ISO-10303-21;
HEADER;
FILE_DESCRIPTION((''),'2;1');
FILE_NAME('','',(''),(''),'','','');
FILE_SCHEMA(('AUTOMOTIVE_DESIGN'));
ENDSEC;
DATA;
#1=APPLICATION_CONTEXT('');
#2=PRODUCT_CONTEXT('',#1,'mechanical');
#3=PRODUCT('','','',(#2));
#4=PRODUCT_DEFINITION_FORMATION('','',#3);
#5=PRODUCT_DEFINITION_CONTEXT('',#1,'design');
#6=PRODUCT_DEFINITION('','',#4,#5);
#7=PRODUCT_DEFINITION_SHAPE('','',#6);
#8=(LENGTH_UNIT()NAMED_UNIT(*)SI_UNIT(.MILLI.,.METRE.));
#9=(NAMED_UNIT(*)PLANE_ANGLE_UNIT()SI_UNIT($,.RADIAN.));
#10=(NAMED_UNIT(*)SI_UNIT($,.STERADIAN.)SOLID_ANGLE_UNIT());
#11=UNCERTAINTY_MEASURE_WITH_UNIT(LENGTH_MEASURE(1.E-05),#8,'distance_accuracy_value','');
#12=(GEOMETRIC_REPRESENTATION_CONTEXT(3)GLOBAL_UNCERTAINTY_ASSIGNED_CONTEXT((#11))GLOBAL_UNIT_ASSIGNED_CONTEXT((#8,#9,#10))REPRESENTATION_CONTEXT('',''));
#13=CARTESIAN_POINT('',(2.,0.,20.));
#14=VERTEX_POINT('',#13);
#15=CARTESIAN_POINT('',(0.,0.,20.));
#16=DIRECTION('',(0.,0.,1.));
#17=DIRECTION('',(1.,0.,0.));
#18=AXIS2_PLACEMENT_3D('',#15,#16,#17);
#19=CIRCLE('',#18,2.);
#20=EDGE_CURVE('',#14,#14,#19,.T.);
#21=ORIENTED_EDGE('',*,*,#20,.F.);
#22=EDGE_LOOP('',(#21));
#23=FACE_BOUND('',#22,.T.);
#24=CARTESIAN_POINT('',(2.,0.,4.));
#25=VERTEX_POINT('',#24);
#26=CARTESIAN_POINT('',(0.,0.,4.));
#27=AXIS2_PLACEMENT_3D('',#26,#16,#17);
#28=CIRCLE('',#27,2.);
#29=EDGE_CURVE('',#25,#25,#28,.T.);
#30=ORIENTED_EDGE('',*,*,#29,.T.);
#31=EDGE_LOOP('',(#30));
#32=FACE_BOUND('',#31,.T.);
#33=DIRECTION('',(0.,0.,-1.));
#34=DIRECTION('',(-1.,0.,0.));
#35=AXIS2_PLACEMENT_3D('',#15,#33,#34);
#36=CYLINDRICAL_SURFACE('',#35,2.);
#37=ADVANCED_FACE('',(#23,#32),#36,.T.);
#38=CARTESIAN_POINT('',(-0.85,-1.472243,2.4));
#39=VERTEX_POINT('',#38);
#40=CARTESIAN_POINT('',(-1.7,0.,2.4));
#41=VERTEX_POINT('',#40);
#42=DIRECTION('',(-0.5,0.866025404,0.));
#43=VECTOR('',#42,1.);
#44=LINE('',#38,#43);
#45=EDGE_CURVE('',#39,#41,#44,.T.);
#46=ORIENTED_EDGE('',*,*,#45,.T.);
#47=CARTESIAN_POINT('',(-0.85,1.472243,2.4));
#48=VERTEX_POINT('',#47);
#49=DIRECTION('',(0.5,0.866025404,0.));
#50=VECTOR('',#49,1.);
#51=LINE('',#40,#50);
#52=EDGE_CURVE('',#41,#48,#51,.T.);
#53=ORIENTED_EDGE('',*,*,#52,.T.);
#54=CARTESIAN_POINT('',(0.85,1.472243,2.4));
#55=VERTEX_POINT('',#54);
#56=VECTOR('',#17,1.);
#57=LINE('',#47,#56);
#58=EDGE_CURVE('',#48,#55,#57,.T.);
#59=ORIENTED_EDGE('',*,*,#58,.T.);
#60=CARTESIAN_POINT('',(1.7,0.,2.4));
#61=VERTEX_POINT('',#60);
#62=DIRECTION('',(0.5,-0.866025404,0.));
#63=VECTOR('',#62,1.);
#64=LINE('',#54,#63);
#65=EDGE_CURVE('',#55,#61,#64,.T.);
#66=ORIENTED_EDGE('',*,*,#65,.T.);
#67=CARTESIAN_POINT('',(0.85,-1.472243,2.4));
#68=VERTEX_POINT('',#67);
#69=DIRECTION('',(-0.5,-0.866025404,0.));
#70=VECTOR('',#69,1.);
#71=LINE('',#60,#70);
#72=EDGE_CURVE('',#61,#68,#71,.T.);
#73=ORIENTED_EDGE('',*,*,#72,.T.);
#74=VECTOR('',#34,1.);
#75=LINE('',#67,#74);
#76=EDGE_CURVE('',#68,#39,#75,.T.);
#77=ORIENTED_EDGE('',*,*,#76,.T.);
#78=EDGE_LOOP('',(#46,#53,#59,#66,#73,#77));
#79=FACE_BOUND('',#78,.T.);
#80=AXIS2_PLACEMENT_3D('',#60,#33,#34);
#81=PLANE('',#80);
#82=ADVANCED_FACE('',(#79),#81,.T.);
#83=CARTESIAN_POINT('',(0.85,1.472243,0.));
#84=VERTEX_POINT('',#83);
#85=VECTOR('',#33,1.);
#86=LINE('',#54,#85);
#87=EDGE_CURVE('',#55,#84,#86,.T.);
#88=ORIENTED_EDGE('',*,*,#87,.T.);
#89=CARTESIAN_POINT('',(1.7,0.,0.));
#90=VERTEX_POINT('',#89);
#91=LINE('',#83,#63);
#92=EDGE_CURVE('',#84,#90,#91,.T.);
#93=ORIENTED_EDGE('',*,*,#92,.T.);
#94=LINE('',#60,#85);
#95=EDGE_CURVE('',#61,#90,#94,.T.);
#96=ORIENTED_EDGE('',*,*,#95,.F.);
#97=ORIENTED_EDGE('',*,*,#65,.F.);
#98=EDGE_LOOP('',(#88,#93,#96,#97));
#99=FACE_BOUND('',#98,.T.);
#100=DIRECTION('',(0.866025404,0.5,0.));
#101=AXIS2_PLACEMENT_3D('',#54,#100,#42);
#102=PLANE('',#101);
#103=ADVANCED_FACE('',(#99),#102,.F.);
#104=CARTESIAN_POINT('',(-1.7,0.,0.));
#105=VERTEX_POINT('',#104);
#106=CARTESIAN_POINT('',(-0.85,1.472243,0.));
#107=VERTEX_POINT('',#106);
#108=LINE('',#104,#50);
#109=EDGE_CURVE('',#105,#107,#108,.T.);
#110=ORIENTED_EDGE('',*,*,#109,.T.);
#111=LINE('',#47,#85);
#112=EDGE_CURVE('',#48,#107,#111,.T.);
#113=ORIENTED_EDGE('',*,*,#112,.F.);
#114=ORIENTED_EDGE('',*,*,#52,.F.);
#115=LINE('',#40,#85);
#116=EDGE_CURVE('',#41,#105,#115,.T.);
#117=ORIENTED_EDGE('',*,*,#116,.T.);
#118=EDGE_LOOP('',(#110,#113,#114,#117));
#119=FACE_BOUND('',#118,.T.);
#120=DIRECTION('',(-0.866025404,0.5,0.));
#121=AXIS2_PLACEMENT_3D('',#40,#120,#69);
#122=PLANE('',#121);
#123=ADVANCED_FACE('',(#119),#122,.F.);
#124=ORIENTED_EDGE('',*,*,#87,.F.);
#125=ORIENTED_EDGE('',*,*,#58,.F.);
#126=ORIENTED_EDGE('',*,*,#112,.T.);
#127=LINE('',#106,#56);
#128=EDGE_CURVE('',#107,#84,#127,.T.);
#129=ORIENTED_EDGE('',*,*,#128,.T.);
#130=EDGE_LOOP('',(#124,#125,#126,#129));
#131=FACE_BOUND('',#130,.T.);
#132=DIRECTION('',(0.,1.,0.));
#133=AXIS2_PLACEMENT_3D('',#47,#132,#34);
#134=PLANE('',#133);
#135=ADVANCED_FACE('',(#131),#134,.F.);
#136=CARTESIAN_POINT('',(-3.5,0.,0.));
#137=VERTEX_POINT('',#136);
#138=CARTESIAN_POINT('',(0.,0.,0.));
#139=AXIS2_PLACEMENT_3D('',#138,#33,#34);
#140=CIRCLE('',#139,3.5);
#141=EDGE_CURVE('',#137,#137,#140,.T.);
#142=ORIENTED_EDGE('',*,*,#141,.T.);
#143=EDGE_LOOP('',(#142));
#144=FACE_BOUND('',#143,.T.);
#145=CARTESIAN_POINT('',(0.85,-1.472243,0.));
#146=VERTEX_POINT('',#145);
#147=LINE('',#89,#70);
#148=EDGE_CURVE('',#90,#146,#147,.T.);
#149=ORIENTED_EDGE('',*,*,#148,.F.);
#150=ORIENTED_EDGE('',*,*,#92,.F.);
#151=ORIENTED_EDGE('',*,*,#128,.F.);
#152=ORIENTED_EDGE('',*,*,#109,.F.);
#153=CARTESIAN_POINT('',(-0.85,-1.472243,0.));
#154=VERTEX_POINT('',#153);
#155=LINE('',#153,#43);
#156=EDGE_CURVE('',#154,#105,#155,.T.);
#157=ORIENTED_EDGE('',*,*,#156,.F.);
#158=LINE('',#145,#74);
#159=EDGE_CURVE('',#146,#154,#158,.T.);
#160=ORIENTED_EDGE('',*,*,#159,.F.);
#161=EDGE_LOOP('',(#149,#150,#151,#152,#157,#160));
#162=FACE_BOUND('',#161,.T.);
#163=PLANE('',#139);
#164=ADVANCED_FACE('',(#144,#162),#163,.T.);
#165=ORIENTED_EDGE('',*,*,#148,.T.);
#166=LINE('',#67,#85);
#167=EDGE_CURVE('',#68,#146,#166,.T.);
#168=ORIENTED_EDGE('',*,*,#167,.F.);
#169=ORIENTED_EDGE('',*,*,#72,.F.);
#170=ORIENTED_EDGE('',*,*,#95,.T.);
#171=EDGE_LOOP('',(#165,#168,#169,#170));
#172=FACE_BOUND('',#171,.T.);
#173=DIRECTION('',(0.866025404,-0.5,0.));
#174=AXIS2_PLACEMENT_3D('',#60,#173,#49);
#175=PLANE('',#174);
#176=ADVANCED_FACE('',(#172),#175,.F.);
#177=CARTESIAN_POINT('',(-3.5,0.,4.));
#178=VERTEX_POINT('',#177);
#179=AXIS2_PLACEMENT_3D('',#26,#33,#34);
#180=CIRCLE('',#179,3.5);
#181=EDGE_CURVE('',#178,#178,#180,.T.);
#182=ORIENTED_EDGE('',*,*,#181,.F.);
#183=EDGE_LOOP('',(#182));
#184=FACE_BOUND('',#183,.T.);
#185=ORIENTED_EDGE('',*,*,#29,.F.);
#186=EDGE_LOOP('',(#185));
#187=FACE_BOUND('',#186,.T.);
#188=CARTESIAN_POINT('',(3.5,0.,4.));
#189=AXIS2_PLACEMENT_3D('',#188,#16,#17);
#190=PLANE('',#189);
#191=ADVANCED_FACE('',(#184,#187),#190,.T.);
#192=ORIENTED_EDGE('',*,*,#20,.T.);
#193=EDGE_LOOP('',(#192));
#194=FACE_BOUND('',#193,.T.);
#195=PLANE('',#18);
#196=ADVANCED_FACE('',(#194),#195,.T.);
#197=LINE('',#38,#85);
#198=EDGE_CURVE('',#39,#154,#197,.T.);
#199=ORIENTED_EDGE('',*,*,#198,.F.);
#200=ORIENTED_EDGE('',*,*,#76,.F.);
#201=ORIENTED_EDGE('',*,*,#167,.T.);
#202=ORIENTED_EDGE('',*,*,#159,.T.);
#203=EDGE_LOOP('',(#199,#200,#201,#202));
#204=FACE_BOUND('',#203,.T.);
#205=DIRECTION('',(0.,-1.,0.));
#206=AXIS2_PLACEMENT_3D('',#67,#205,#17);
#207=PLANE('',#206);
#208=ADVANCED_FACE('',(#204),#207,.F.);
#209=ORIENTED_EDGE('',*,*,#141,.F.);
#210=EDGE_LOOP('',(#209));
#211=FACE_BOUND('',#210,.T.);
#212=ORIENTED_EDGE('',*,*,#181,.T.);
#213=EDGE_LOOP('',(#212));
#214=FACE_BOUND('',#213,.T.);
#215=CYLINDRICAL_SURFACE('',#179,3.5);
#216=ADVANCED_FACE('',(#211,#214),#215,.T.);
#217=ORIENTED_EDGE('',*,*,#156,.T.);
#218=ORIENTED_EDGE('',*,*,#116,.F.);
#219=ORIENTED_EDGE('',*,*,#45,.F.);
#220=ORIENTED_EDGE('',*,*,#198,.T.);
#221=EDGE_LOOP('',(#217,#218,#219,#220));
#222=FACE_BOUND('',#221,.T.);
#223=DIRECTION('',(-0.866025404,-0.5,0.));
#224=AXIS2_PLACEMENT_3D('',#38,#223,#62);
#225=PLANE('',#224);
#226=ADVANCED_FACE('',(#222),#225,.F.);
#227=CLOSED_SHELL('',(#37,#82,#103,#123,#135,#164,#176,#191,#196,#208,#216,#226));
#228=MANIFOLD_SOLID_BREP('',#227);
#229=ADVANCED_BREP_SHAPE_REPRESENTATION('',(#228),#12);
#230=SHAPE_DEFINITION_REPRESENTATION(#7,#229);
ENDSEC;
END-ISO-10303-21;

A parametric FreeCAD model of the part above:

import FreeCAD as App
import Part
import Sketcher
Q = App.Units.Quantity

doc = App.newDocument("Part")
body = doc.addObject("PartDesign::Body", "Body")

sketch1 = body.newObject("Sketcher::SketchObject", "Sketch")
sketch1.AttachmentSupport = (doc.getObject("XZ_Plane"), [""])
sketch1.MapMode = "FlatFace"
sketch1.addGeometry(Part.LineSegment(App.Vector(0, 4, 0), App.Vector(0, 0, 0)), False)
sketch1.addGeometry(Part.LineSegment(App.Vector(0, 0, 0), App.Vector(3.5, 0, 0)), False)
sketch1.addGeometry(Part.LineSegment(App.Vector(3.5, 0, 0), App.Vector(3.5, 4, 0)), False)
sketch1.addGeometry(Part.LineSegment(App.Vector(3.5, 4, 0), App.Vector(0, 4, 0)), False)
sketch1.addConstraint(Sketcher.Constraint("Coincident", 0, 2, 1, 1))
sketch1.addConstraint(Sketcher.Constraint("Coincident", 1, 2, 2, 1))
sketch1.addConstraint(Sketcher.Constraint("Coincident", 2, 2, 3, 1))
sketch1.addConstraint(Sketcher.Constraint("Coincident", 3, 2, 0, 1))
sketch1.addConstraint(Sketcher.Constraint("Vertical", 0))
sketch1.addConstraint(Sketcher.Constraint("Horizontal", 1))
sketch1.addConstraint(Sketcher.Constraint("Vertical", 2))
sketch1.addConstraint(Sketcher.Constraint("Horizontal", 3))
sketch1.addConstraint(Sketcher.Constraint("Coincident", 0, 2, -1, 1))
sketch1.addConstraint(Sketcher.Constraint("DistanceY", 0, 2, 0, 1, Q("4 mm")))
sketch1.addConstraint(Sketcher.Constraint("DistanceX", 1, 1, 1, 2, Q("3.5 mm")))
revolution = body.newObject("PartDesign::Revolution", "Revolution")
revolution.Profile = sketch1
revolution.ReferenceAxis = (sketch1, ["V_Axis"])
revolution.Angle = 360

sketch2 = body.newObject("Sketcher::SketchObject", "Sketch001")
sketch2.AttachmentSupport = (doc.getObject("XY_Plane"), [""])
sketch2.MapMode = "FlatFace"
sketch2.AttachmentOffset = App.Placement(App.Vector(0, 0, 4), App.Rotation())
sketch2.addGeometry(Part.Circle(App.Vector(0, 0, 0), App.Vector(0, 0, 1), 2), False)
sketch2.addConstraint(Sketcher.Constraint("Coincident", 0, 3, -1, 1))
sketch2.addConstraint(Sketcher.Constraint("Diameter", 0, Q("4 mm")))
pad1 = body.newObject("PartDesign::Pad", "Pad")
pad1.Profile = sketch2
pad1.Length = 16

sketch3 = body.newObject("Sketcher::SketchObject", "Sketch002")
sketch3.AttachmentSupport = (doc.getObject("XY_Plane"), [""])
sketch3.MapMode = "FlatFace"
sketch3.addGeometry(Part.LineSegment(App.Vector(1.7, 0, 0), App.Vector(0.8, -1.5, 0)), False)
sketch3.addGeometry(Part.LineSegment(App.Vector(0.8, -1.5, 0), App.Vector(-0.8, -1.5, 0)), False)
sketch3.addGeometry(Part.LineSegment(App.Vector(-0.8, -1.5, 0), App.Vector(-1.7, 0, 0)), False)
sketch3.addGeometry(Part.LineSegment(App.Vector(-1.7, 0, 0), App.Vector(-0.8, 1.5, 0)), False)
sketch3.addGeometry(Part.LineSegment(App.Vector(-0.8, 1.5, 0), App.Vector(0.8, 1.5, 0)), False)
sketch3.addGeometry(Part.LineSegment(App.Vector(0.8, 1.5, 0), App.Vector(1.7, 0, 0)), False)
sketch3.addConstraint(Sketcher.Constraint("Coincident", 0, 2, 1, 1))
sketch3.addConstraint(Sketcher.Constraint("Coincident", 1, 2, 2, 1))
sketch3.addConstraint(Sketcher.Constraint("Coincident", 2, 2, 3, 1))
sketch3.addConstraint(Sketcher.Constraint("Coincident", 3, 2, 4, 1))
sketch3.addConstraint(Sketcher.Constraint("Coincident", 4, 2, 5, 1))
sketch3.addConstraint(Sketcher.Constraint("Coincident", 5, 2, 0, 1))
sketch3.addConstraint(Sketcher.Constraint("Horizontal", 1))
sketch3.addConstraint(Sketcher.Constraint("Horizontal", 4))
sketch3.addConstraint(Sketcher.Constraint("Symmetric", 0, 2, 3, 2, -1, 1))
sketch3.addConstraint(Sketcher.Constraint("Symmetric", 2, 2, 5, 2, -1, 1))
sketch3.addConstraint(Sketcher.Constraint("PointOnObject", 2, 2, -1))
sketch3.addConstraint(Sketcher.Constraint("Parallel", 2, 5))
sketch3.addConstraint(Sketcher.Constraint("Vertical", 1, 2, 3, 2))
sketch3.addConstraint(Sketcher.Constraint("Angle", 0, Q("-120 deg")))
sketch3.addConstraint(Sketcher.Constraint("DistanceX", 1, 2, 1, 1, Q("1.7 mm")))
sketch3.addConstraint(Sketcher.Constraint("Distance", 0, Q("1.7 mm")))
pocket1 = body.newObject("PartDesign::Pocket", "Pocket")
pocket1.Profile = sketch3
pocket1.Length = 2.4
pocket1.Reversed = True

doc.recompute()
